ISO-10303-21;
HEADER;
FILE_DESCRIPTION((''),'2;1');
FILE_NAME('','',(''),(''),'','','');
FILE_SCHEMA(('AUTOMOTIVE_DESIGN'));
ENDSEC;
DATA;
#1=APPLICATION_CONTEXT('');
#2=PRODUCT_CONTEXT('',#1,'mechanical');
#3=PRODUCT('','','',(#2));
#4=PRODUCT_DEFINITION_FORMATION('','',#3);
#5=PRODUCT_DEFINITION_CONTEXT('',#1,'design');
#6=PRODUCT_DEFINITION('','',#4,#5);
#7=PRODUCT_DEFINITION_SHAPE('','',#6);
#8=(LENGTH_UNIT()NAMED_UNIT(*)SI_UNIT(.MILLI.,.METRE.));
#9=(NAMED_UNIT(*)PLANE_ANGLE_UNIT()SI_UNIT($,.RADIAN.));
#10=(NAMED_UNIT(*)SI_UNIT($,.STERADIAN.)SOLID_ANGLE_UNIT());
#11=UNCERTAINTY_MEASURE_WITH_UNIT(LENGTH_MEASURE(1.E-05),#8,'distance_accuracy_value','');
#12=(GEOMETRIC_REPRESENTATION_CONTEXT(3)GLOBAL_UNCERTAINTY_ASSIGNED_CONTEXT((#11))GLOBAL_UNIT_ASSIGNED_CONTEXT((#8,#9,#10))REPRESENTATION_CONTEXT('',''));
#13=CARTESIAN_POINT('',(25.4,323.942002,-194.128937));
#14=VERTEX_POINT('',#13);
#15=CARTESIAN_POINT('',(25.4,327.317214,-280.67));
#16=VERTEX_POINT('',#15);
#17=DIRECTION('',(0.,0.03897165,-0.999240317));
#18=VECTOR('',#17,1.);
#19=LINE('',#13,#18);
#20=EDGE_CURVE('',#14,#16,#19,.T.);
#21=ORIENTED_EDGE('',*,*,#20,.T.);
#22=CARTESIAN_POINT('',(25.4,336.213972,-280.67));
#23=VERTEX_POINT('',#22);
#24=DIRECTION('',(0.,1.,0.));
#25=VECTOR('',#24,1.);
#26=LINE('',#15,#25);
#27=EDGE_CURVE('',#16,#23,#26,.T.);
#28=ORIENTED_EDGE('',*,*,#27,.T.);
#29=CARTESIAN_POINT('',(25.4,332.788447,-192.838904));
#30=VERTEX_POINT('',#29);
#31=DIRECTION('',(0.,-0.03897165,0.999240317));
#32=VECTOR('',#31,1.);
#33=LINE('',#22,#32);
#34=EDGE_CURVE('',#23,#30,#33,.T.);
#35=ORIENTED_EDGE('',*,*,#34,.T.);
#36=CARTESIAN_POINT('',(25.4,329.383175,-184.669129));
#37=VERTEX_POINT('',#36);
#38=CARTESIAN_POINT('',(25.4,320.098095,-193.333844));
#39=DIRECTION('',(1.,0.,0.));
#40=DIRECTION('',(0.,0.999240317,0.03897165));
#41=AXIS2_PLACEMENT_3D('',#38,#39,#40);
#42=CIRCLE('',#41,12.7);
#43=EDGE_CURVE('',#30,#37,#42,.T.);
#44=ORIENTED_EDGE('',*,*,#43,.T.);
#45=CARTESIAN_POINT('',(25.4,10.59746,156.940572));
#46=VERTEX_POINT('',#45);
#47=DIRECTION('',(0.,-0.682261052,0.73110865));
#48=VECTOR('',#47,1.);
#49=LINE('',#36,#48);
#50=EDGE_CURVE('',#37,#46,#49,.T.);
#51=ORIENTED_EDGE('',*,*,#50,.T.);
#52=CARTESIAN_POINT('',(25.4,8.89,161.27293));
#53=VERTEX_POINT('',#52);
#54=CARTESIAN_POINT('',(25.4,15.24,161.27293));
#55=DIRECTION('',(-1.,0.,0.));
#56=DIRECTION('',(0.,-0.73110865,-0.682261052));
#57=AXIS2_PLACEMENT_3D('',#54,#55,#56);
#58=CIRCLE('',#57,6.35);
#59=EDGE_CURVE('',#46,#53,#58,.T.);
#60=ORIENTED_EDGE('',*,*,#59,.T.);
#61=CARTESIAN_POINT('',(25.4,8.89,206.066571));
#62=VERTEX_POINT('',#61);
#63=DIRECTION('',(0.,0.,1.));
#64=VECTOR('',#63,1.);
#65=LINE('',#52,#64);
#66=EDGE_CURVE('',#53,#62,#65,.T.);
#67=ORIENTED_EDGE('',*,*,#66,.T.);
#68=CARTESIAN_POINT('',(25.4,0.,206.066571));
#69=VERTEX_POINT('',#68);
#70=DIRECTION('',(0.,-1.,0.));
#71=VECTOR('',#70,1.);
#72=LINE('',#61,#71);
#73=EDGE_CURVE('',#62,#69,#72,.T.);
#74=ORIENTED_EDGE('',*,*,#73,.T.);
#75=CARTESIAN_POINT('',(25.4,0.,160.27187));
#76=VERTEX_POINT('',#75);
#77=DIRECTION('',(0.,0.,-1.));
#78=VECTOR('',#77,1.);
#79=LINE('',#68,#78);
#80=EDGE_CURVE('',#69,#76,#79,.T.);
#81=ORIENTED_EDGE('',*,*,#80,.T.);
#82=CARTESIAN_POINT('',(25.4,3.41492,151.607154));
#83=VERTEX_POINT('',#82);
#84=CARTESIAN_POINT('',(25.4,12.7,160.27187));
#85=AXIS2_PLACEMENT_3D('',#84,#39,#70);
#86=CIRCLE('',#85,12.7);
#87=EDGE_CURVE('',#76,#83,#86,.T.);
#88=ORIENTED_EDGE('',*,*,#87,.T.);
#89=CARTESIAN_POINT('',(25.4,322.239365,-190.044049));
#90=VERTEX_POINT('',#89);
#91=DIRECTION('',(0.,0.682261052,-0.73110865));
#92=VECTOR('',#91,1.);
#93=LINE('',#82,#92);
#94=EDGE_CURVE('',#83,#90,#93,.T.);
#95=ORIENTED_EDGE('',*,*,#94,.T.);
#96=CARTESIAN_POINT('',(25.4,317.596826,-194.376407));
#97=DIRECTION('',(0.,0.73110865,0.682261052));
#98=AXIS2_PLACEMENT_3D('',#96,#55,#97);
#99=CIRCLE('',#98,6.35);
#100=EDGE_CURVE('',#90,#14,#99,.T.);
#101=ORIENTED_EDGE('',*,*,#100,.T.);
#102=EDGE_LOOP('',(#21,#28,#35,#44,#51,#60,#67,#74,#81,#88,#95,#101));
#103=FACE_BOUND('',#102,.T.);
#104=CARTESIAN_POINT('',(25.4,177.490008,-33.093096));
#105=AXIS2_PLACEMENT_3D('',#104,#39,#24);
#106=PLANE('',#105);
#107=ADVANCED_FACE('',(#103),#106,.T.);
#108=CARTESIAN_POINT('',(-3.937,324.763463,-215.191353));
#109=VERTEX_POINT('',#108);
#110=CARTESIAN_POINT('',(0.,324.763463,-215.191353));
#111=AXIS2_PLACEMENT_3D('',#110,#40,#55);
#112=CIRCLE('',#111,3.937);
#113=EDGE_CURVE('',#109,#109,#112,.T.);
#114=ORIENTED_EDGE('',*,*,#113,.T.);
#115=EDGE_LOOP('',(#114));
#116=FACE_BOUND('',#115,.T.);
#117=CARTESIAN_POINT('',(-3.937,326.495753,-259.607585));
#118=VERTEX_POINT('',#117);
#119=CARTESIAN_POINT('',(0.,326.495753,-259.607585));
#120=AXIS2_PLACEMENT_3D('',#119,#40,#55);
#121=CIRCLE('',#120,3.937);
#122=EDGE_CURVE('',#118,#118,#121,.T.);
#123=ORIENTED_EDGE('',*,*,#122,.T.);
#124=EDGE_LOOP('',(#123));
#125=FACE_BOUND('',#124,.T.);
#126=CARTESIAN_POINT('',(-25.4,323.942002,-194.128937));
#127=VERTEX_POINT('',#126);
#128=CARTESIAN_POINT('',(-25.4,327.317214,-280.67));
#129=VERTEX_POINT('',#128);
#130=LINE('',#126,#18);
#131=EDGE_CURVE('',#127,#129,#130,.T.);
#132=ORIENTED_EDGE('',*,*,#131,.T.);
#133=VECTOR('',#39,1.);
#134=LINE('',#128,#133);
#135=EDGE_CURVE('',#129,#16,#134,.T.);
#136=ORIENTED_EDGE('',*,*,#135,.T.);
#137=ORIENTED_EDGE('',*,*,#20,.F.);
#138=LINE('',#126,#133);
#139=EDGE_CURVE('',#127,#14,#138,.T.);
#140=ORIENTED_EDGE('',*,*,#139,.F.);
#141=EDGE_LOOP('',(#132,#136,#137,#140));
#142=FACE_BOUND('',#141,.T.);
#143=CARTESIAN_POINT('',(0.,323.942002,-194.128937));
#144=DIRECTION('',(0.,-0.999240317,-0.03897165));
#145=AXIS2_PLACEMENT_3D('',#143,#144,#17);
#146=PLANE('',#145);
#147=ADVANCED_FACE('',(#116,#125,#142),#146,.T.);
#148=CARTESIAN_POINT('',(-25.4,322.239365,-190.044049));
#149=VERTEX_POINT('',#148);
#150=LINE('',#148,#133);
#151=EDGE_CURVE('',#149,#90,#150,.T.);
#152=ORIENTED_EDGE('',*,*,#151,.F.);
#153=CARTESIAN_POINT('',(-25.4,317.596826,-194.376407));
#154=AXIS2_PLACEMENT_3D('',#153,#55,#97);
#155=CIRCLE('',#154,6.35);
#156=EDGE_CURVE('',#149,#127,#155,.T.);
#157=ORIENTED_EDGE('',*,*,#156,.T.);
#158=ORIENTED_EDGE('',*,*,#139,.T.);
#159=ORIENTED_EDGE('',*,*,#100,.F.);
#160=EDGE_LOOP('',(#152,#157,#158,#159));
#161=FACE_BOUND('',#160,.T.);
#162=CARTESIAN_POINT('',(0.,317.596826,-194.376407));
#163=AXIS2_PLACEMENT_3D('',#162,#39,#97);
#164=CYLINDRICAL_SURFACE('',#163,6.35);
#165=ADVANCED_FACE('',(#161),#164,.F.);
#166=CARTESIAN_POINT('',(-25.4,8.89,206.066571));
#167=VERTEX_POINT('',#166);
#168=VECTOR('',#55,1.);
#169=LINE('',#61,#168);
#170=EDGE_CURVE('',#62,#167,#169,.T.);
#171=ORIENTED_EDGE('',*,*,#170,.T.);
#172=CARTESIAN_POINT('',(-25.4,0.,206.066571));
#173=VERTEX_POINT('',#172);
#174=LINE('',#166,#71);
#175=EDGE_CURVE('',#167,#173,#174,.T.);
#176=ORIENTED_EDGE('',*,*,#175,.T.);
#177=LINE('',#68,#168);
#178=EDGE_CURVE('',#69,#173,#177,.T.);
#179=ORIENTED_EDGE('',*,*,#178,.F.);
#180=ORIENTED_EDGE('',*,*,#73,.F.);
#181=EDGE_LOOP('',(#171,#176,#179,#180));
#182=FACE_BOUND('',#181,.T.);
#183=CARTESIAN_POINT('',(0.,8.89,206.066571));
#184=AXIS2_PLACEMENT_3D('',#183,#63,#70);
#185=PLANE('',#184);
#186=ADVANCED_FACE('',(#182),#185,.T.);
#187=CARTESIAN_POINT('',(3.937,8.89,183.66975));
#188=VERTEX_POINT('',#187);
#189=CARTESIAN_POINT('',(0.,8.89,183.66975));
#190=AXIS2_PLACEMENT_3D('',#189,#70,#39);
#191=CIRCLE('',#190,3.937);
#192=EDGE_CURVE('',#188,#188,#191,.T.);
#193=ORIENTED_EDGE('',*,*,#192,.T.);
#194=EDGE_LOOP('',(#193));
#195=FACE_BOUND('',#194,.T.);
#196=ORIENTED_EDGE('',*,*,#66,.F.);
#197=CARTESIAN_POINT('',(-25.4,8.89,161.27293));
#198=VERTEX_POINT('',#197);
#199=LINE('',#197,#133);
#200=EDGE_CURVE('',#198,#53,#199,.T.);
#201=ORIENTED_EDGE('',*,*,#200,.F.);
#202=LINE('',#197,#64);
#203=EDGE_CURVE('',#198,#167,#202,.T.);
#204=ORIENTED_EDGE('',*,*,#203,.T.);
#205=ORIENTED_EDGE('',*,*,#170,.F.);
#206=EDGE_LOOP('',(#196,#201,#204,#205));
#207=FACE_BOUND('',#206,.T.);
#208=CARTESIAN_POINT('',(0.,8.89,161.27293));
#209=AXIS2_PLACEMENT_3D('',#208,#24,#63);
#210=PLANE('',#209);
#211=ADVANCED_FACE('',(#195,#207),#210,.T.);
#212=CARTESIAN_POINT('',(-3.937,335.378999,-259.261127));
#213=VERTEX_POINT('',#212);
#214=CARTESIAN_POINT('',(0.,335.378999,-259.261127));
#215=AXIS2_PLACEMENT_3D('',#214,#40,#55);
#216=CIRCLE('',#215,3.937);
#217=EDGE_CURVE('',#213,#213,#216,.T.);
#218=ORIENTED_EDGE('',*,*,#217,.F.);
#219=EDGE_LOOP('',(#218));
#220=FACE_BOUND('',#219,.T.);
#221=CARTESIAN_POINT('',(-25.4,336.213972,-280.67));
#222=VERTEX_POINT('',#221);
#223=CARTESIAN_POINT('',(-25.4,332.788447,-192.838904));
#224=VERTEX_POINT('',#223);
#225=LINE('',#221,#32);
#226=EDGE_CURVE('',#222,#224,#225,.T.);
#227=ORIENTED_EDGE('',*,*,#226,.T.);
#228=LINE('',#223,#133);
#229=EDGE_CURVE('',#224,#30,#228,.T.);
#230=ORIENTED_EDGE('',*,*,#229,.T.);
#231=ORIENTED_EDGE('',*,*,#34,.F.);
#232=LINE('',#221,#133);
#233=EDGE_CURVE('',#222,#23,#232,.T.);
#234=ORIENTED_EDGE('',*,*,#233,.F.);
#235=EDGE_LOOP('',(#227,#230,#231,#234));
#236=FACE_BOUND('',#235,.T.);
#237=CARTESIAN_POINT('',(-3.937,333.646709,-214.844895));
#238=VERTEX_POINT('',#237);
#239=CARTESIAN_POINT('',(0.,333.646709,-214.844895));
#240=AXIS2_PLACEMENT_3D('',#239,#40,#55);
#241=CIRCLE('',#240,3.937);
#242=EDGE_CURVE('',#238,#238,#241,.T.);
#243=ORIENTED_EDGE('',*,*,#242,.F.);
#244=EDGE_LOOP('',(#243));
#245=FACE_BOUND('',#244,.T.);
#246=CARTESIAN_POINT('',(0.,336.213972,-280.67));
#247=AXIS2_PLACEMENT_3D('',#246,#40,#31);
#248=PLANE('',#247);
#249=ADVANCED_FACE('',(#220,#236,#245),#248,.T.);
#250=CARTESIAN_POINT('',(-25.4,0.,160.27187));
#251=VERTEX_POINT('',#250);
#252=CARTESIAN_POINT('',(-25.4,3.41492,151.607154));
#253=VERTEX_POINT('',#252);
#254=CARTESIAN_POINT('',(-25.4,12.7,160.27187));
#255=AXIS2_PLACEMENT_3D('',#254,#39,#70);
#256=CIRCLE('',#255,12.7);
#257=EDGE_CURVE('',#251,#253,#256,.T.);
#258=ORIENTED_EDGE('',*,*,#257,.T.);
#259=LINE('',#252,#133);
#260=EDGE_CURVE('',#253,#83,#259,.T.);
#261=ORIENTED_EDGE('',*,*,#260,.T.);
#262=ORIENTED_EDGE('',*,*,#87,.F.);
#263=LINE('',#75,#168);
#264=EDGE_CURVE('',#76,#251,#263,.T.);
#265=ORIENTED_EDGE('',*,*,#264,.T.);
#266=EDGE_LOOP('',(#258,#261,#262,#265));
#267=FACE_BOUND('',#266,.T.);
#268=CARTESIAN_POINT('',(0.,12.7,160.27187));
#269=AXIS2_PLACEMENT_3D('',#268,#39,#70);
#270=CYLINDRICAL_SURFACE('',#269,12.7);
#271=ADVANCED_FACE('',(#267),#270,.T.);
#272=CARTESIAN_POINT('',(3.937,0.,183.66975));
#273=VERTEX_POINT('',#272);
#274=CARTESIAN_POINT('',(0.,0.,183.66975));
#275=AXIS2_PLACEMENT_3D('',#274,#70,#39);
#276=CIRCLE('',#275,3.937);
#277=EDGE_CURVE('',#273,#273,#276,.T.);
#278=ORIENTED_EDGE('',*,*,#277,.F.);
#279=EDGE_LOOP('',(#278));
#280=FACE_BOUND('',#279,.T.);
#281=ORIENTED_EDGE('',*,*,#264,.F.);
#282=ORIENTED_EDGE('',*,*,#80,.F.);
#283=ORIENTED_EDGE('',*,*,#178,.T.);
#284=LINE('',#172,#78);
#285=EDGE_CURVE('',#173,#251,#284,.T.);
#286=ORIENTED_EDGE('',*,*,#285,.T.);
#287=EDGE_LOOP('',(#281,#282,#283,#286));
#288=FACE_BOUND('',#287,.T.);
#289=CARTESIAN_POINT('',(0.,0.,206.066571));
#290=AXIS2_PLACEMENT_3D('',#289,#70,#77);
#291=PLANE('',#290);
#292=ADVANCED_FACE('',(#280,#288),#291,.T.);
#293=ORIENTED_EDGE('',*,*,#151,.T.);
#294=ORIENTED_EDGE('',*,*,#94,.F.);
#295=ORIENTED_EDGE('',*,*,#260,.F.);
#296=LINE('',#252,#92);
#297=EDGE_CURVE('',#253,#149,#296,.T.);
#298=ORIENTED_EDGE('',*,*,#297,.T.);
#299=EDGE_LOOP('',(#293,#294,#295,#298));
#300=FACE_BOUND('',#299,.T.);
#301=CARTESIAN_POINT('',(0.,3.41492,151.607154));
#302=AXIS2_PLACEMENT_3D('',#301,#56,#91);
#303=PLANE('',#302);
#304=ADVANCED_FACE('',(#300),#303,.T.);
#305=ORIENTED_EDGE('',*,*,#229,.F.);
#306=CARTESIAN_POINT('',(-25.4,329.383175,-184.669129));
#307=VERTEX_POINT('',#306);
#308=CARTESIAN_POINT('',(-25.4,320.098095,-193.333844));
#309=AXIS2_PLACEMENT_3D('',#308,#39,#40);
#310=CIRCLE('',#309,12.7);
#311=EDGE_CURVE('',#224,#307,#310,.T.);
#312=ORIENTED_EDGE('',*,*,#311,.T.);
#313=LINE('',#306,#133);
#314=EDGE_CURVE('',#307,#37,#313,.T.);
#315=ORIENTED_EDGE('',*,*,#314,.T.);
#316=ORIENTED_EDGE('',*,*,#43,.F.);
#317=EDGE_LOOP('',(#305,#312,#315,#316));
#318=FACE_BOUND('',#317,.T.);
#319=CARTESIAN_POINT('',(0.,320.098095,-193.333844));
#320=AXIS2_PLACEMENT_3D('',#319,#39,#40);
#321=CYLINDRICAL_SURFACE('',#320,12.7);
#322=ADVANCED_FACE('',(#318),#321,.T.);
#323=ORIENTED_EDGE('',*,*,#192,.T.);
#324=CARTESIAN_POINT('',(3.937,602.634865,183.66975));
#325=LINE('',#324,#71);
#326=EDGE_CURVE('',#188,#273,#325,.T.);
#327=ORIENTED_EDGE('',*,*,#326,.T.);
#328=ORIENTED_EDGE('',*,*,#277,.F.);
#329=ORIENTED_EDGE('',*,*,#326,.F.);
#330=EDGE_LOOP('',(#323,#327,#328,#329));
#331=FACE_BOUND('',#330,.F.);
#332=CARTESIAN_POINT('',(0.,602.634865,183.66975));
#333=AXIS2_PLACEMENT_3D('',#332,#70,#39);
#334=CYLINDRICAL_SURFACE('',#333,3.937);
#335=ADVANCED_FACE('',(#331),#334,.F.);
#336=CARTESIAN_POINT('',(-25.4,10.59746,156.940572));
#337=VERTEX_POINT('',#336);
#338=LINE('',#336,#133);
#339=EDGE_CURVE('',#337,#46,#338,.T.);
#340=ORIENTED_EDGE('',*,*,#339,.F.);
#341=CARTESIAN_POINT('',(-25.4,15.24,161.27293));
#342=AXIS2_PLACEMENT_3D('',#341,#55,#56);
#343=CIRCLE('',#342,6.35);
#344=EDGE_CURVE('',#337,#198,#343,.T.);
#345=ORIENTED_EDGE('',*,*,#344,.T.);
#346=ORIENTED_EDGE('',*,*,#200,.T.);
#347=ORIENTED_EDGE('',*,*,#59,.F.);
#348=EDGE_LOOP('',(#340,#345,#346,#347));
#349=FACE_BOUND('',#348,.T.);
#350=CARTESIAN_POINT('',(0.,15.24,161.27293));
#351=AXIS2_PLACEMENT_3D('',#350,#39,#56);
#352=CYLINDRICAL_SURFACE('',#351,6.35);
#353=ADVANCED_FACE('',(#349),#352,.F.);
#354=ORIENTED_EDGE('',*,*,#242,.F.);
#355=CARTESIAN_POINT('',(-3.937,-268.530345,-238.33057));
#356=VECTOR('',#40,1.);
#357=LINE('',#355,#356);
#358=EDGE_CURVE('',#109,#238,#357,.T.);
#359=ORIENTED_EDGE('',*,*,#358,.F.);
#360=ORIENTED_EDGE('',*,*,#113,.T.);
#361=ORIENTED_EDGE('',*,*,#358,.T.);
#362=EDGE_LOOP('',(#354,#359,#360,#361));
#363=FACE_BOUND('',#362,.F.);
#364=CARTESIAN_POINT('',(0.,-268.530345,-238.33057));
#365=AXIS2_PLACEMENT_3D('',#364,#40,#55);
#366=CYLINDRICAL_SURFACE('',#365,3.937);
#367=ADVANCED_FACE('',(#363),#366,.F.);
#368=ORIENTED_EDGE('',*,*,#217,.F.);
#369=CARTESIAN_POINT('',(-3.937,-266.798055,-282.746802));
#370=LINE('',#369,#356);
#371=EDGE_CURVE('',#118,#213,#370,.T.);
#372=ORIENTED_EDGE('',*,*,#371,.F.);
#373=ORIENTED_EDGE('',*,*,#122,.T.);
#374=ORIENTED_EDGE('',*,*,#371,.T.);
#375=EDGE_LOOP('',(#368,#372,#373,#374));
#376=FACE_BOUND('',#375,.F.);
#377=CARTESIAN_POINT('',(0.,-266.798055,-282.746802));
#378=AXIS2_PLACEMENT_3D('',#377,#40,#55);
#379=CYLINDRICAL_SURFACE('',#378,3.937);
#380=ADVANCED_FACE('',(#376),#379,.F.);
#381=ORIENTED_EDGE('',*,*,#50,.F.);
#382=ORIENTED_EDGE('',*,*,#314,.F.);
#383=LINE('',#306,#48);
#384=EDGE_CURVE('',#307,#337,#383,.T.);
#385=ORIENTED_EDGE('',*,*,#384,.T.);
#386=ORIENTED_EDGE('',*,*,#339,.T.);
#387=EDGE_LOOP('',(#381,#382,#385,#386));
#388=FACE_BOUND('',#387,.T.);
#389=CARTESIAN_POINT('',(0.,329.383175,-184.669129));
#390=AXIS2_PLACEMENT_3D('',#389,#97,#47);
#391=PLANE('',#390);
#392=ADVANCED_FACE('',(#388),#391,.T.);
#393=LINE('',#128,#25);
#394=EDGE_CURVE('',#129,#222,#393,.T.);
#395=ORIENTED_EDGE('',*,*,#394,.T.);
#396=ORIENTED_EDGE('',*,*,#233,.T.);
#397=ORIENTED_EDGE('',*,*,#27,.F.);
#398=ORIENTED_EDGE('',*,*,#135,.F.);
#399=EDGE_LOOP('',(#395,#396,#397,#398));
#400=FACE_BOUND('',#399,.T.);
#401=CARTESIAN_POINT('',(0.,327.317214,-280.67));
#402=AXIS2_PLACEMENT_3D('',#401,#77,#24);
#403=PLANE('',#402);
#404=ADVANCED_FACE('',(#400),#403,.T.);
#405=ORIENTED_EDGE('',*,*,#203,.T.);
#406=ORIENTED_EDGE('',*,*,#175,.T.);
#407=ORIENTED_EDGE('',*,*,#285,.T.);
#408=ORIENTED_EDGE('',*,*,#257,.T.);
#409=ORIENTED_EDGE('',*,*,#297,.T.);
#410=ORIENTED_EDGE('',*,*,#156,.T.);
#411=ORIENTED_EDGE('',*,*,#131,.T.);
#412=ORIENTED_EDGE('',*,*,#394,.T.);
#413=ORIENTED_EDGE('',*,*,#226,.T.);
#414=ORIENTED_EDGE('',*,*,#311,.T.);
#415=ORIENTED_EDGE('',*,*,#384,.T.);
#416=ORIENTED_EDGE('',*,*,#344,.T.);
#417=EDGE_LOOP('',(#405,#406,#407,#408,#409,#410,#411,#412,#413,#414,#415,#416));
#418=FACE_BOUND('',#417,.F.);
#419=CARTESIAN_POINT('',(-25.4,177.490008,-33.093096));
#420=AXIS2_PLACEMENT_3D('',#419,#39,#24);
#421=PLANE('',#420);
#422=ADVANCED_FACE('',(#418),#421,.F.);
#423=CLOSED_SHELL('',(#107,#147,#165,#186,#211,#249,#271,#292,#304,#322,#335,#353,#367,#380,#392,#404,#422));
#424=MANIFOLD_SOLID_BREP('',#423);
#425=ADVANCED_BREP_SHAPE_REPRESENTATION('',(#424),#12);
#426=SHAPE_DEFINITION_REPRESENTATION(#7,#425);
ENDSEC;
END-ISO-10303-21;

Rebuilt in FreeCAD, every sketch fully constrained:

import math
import FreeCAD as App
import Part
import Sketcher
from FreeCAD import Vector
Q = App.Units.Quantity

doc = App.newDocument("Part")
params = doc.addObject("Spreadsheet::Sheet", "Params")
for row, (alias, value) in enumerate([
    ("sketch1_radius", "0.5 in"),
    ("sketch1_radius2", "0.25 in"),
    ("sketch1_width", "0.35 in"),
    ("pad1_length", "2 in"),
    ("sketch2_diameter", "0.31 in"),
    ("hole_diameter", "0.31 in"),
    ("sketch3_diameter", "0.31 in"),
    ("hole2_diameter", "0.31 in"),
], start=1):
    params.set(f"A{row}", alias)
    params.set(f"B{row}", "=" + value)
    params.setAlias(f"B{row}", alias)

body = doc.addObject("PartDesign::Body", "Body")

# Sketch on YZ plane
sketch1 = body.newObject("Sketcher::SketchObject", "Sketch")
sketch1.AttachmentSupport = (doc.getObject("YZ_Plane"), [""])
sketch1.MapMode = "FlatFace"
sketch1.addGeometry([
    Part.ArcOfCircle(Part.Circle(Vector(12.7, 160.3, 0), Vector(0, 0, 1), 12.7), math.radians(180), math.radians(223)),  # 0
    Part.LineSegment(Vector(3.4, 151.6, 0), Vector(322.2, -190, 0)),  # 1
    Part.ArcOfCircle(Part.Circle(Vector(317.6, -194.4, 0), Vector(0, 0, 1), 6.3), math.radians(2), math.radians(43)),  # 2
    Part.LineSegment(Vector(323.9, -194.1, 0), Vector(327.3, -280.7, 0)),  # 3
    Part.LineSegment(Vector(327.3, -280.7, 0), Vector(336.2, -280.7, 0)),  # 4
    Part.LineSegment(Vector(336.2, -280.7, 0), Vector(332.8, -192.8, 0)),  # 5
    Part.ArcOfCircle(Part.Circle(Vector(320.1, -193.3, 0), Vector(0, 0, 1), 12.7), math.radians(2), math.radians(43)),  # 6
    Part.LineSegment(Vector(329.4, -184.7, 0), Vector(10.6, 156.9, 0)),  # 7
    Part.ArcOfCircle(Part.Circle(Vector(15.2, 161.3, 0), Vector(0, 0, 1), 6.3), math.radians(180), math.radians(223)),  # 8
    Part.LineSegment(Vector(8.9, 161.3, 0), Vector(8.9, 206.1, 0)),  # 9
    Part.LineSegment(Vector(8.9, 206.1, 0), Vector(0, 206.1, 0)),  # 10
    Part.LineSegment(Vector(0, 206.1, 0), Vector(0, 160.3, 0)),  # 11
], False)
sketch1.addConstraint([
    Sketcher.Constraint("Tangent", 0, 2, 1, 1),
    Sketcher.Constraint("Tangent", 1, 2, 2, 2),
    Sketcher.Constraint("Tangent", 2, 1, 3, 1),
    Sketcher.Constraint("Coincident", 3, 2, 4, 1),
    Sketcher.Constraint("Coincident", 4, 2, 5, 1),
    Sketcher.Constraint("Tangent", 5, 2, 6, 1),
    Sketcher.Constraint("Tangent", 6, 2, 7, 1),
    Sketcher.Constraint("Tangent", 7, 2, 8, 2),
    Sketcher.Constraint("Tangent", 8, 1, 9, 1),
    Sketcher.Constraint("Coincident", 9, 2, 10, 1),
    Sketcher.Constraint("Coincident", 10, 2, 11, 1),
    Sketcher.Constraint("Tangent", 11, 2, 0, 1),
    Sketcher.Constraint("Horizontal", 4),
    Sketcher.Constraint("Vertical", 9),
    Sketcher.Constraint("Horizontal", 10),
    Sketcher.Constraint("Vertical", 11),
    Sketcher.Constraint("Equal", 0, 6),
    Sketcher.Constraint("Equal", 2, 8),
    Sketcher.Constraint("PointOnObject", 10, 2, -2),
    Sketcher.Constraint("Parallel", 3, 5),
    Sketcher.Constraint("Parallel", 1, 7),
    Sketcher.Constraint("Radius", 0, Q("0.5 in")),
    Sketcher.Constraint("Radius", 2, Q("0.25 in")),
    Sketcher.Constraint("DistanceX", 10, 2, 10, 1, Q("0.35 in")),
    Sketcher.Constraint("DistanceY", 3, 2, -1, 1, Q("11.05 in")),
    Sketcher.Constraint("DistanceY", 11, 2, 11, 1, 45.794702),
    Sketcher.Constraint("DistanceY", 2, 3, 0, 2, Q("13.6214001 in")),
    Sketcher.Constraint("DistanceX", 4, 1, 4, 2, 8.896759),
    Sketcher.Constraint("DistanceY", 9, 1, 9, 2, 44.793642),
    Sketcher.Constraint("DistanceX", -1, 1, 2, 1, 323.942002),
    Sketcher.Constraint("Distance", 5, 87.89787),
    Sketcher.Constraint("DistanceY", -1, 1, 0, 3, 160.27187),
])
sketch1.setExpression("Constraints[21]", "Params.sketch1_radius")
sketch1.setExpression("Constraints[22]", "Params.sketch1_radius2")
sketch1.setExpression("Constraints[23]", "Params.sketch1_width")
pad1 = body.newObject("PartDesign::Pad", "Pad")
pad1.Profile = sketch1
pad1.setExpression("Length", "Params.pad1_length")
pad1.Midplane = True

# Sketch on XZ plane
sketch2 = body.newObject("Sketcher::SketchObject", "Sketch001")
sketch2.AttachmentSupport = (doc.getObject("XZ_Plane"), [""])
sketch2.MapMode = "FlatFace"
sketch2.AttachmentOffset = App.Placement(Vector(0, 0, -0.35 * 25.4), App.Rotation())
sketch2.addGeometry(Part.Circle(Vector(0, 183.7, 0), Vector(0, 0, 1), 3.9), False)
sketch2.addConstraint([
    Sketcher.Constraint("PointOnObject", 0, 3, -2),
    Sketcher.Constraint("Diameter", 0, Q("0.31 in")),
    Sketcher.Constraint("DistanceY", -1, 1, 0, 3, 183.66975),
])
sketch2.setExpression("Constraints[1]", "Params.sketch2_diameter")
doc.recompute()
hole = body.newObject("PartDesign::Hole", "Hole")
hole.Profile = sketch2
hole.ThreadType = "None"
hole.setExpression("Diameter", "Params.hole_diameter")
hole.DepthType = "ThroughAll"
hole.Reversed = True

# Sketch on an angled plane
sketch3 = body.newObject("Sketcher::SketchObject", "Sketch002")
sketch3.Placement = App.Placement(Vector(0, 315.890224, 12.320123), App.Rotation(Vector(1, 0, 0), Vector(0, -0.03897165, 0.999240317), Vector(0, -0.999240317, -0.03897165), "ZXY"))
sketch3.addGeometry([
    Part.Circle(Vector(0, -227.7, 0), Vector(0, 0, 1), 3.9),
    Part.Circle(Vector(0, -272.1, 0), Vector(0, 0, 1), 3.9),
], False)
sketch3.addConstraint([
    Sketcher.Constraint("Equal", 0, 1),
    Sketcher.Constraint("PointOnObject", 0, 3, -2),
    Sketcher.Constraint("PointOnObject", 1, 3, -2),
    Sketcher.Constraint("Diameter", 0, Q("0.31 in")),
    Sketcher.Constraint("DistanceY", 1, 3, 0, 3, Q("1.75 in")),
    Sketcher.Constraint("DistanceY", 0, 3, -1, 1, 227.684443),
])
sketch3.setExpression("Constraints[3]", "Params.sketch3_diameter")
doc.recompute()
hole2 = body.newObject("PartDesign::Hole", "Hole001")
hole2.Profile = sketch3
hole2.ThreadType = "None"
hole2.setExpression("Diameter", "Params.hole2_diameter")
hole2.DepthType = "ThroughAll"

doc.recompute()
